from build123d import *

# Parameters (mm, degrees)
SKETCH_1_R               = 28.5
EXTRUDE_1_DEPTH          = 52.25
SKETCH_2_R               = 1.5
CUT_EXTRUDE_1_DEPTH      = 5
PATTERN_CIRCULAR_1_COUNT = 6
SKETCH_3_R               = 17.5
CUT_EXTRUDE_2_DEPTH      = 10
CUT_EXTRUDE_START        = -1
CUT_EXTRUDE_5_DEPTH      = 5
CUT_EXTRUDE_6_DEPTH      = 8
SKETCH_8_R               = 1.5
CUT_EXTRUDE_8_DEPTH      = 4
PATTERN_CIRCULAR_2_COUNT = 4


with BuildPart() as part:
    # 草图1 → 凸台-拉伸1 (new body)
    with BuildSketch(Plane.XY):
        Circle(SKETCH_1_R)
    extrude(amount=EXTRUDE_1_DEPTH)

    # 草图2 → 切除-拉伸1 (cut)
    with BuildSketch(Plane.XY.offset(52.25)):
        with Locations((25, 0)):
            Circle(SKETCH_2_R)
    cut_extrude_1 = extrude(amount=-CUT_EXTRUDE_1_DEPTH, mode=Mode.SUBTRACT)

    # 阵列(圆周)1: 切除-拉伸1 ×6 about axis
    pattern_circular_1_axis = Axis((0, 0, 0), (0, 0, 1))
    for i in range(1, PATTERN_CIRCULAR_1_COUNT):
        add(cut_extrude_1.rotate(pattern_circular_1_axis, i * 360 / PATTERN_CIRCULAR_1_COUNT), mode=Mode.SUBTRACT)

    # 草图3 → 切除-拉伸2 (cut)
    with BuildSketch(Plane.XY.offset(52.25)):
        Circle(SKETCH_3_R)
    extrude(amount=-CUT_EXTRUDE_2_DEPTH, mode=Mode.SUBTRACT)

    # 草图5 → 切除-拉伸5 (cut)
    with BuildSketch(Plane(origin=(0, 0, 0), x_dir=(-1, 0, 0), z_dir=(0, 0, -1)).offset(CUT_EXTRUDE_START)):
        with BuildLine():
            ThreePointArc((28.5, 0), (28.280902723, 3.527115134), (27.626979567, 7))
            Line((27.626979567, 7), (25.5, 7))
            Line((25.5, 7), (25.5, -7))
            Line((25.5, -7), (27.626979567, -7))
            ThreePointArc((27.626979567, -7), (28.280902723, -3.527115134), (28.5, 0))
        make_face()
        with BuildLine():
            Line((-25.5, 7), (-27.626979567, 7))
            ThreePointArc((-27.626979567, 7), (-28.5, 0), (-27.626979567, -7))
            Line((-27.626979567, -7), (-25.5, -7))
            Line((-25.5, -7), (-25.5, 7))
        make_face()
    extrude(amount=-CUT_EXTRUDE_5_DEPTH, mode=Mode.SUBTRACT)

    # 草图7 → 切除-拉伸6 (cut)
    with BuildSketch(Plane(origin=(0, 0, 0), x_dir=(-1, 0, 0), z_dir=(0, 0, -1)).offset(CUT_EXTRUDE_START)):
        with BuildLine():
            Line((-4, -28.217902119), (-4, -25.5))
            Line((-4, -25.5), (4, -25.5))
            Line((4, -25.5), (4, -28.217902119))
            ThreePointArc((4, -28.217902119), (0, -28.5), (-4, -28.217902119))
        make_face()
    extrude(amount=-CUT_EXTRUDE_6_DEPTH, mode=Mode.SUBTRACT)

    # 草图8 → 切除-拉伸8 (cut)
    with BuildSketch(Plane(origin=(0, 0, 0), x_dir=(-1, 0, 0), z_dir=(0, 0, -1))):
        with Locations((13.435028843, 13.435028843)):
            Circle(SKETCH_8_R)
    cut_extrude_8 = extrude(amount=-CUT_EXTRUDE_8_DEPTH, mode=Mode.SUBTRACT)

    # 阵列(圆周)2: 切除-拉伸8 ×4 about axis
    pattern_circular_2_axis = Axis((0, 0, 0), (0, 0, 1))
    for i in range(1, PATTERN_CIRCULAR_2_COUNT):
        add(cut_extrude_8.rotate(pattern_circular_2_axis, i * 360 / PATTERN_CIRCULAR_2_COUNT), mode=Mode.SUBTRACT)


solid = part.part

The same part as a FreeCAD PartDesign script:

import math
import FreeCAD as App
import Part
import Sketcher
from FreeCAD import Vector
Q = App.Units.Quantity

doc = App.newDocument("Part")
body = doc.addObject("PartDesign::Body", "Body")

sketch1 = body.newObject("Sketcher::SketchObject", "Sketch")
sketch1.AttachmentSupport = (doc.getObject("XY_Plane"), [""])
sketch1.MapMode = "FlatFace"
sketch1.addGeometry(Part.Circle(Vector(0, 0, 0), Vector(0, 0, 1), 28), False)
sketch1.addConstraint([
    Sketcher.Constraint("Coincident", 0, 3, -1, 1),
    Sketcher.Constraint("Diameter", 0, Q("57 mm")),
])
pad1 = body.newObject("PartDesign::Pad", "Pad")
pad1.Profile = sketch1
pad1.Length = 52.25

sketch2 = body.newObject("Sketcher::SketchObject", "Sketch001")
sketch2.AttachmentSupport = (doc.getObject("XY_Plane"), [""])
sketch2.MapMode = "FlatFace"
sketch2.AttachmentOffset = App.Placement(Vector(0, 0, 52.25), App.Rotation())
sketch2.addGeometry(Part.Circle(Vector(25, 0, 0), Vector(0, 0, 1), 1.5), False)
sketch2.addConstraint([
    Sketcher.Constraint("PointOnObject", 0, 3, -1),
    Sketcher.Constraint("Diameter", 0, Q("3 mm")),
    Sketcher.Constraint("DistanceX", -1, 1, 0, 3, Q("25 mm")),
])
pocket1 = body.newObject("PartDesign::Pocket", "Pocket")
pocket1.Profile = sketch2
pocket1.Length = 5
doc.recompute()

polarpattern = body.newObject("PartDesign::PolarPattern", "PolarPattern")
polarpattern.Originals = [pocket1]
polarpattern.Axis = (doc.getObject("Z_Axis"), [""])
polarpattern.Angle = 360
polarpattern.Occurrences = 6
body.Tip = polarpattern

sketch3 = body.newObject("Sketcher::SketchObject", "Sketch002")
sketch3.AttachmentSupport = (doc.getObject("XY_Plane"), [""])
sketch3.MapMode = "FlatFace"
sketch3.AttachmentOffset = App.Placement(Vector(0, 0, 52.25), App.Rotation())
sketch3.addGeometry(Part.Circle(Vector(0, 0, 0), Vector(0, 0, 1), 18), False)
sketch3.addConstraint([
    Sketcher.Constraint("Coincident", 0, 3, -1, 1),
    Sketcher.Constraint("Diameter", 0, Q("35 mm")),
])
pocket2 = body.newObject("PartDesign::Pocket", "Pocket001")
pocket2.Profile = sketch3
pocket2.Length = 10

sketch4 = body.newObject("Sketcher::SketchObject", "Sketch003")
sketch4.AttachmentSupport = (doc.getObject("XY_Plane"), [""])
sketch4.MapMode = "FlatFace"
sketch4.AttachmentOffset = App.Placement(Vector(0, 0, 1), App.Rotation())
sketch4.addGeometry([
    Part.ArcOfCircle(Part.Circle(Vector(0, 0, 0), Vector(0, 0, 1), 28.5), math.radians(165.78), math.radians(180)),
    Part.LineSegment(Vector(-27.6, 7, 0), Vector(-25.5, 7, 0)),
    Part.LineSegment(Vector(-25.5, 7, 0), Vector(-25.5, -7, 0)),
    Part.LineSegment(Vector(-25.5, -7, 0), Vector(-27.6, -7, 0)),
    Part.ArcOfCircle(Part.Circle(Vector(0, 0, 0), Vector(0, 0, 1), 28.5), math.radians(-180), math.radians(-165.78)),
    Part.LineSegment(Vector(25.5, 7, 0), Vector(27.6, 7, 0)),
    Part.ArcOfCircle(Part.Circle(Vector(0, 0, 0), Vector(0, 0, 1), 28.5), math.radians(-14), math.radians(14)),
    Part.LineSegment(Vector(27.6, -7, 0), Vector(25.5, -7, 0)),
    Part.LineSegment(Vector(25.5, -7, 0), Vector(25.5, 7, 0)),
], False)
sketch4.addConstraint([
    Sketcher.Constraint("Coincident", 0, 1, 1, 1),
    Sketcher.Constraint("Coincident", 1, 2, 2, 1),
    Sketcher.Constraint("Coincident", 2, 2, 3, 1),
    Sketcher.Constraint("Coincident", 3, 2, 4, 2),
    Sketcher.Constraint("Tangent", 4, 1, 0, 2),
    Sketcher.Constraint("Coincident", 5, 2, 6, 2),
    Sketcher.Constraint("Coincident", 6, 1, 7, 1),
    Sketcher.Constraint("Coincident", 7, 2, 8, 1),
    Sketcher.Constraint("Coincident", 8, 2, 5, 1),
    Sketcher.Constraint("Horizontal", 1),
    Sketcher.Constraint("Vertical", 2),
    Sketcher.Constraint("Horizontal", 3),
    Sketcher.Constraint("Horizontal", 5),
    Sketcher.Constraint("Horizontal", 7),
    Sketcher.Constraint("Vertical", 8),
    Sketcher.Constraint("Coincident", 0, 3, -1, 1),
    Sketcher.Constraint("Coincident", 6, 3, -1, 1),
    Sketcher.Constraint("Equal", 0, 4),
    Sketcher.Constraint("Equal", 4, 6),
    Sketcher.Constraint("Symmetric", 1, 2, 7, 2, -1, 1),
    Sketcher.Constraint("PointOnObject", 4, 1, -1),
    Sketcher.Constraint("Horizontal", 1, 2, 5, 2),
    Sketcher.Constraint("Horizontal", 3, 2, 6, 1),
    Sketcher.Constraint("Radius", 0, Q("28.5 mm")),
    Sketcher.Constraint("DistanceY", 2, 2, 2, 1, Q("14 mm")),
    Sketcher.Constraint("DistanceX", 4, 1, 1, 2, Q("3 mm")),
])
pocket3 = body.newObject("PartDesign::Pocket", "Pocket002")
pocket3.Profile = sketch4
pocket3.Length = 5
pocket3.Reversed = True

sketch5 = body.newObject("Sketcher::SketchObject", "Sketch004")
sketch5.AttachmentSupport = (doc.getObject("XY_Plane"), [""])
sketch5.MapMode = "FlatFace"
sketch5.AttachmentOffset = App.Placement(Vector(0, 0, 1), App.Rotation())
sketch5.addGeometry([
    Part.LineSegment(Vector(4, -25.5, 0), Vector(4, -28.2, 0)),
    Part.ArcOfCircle(Part.Circle(Vector(0, 0, 0), Vector(0, 0, 1), 28.5), math.radians(-98.07), math.radians(-81.93)),
    Part.LineSegment(Vector(-4, -28.2, 0), Vector(-4, -25.5, 0)),
    Part.LineSegment(Vector(-4, -25.5, 0), Vector(4, -25.5, 0)),
], False)
sketch5.addConstraint([
    Sketcher.Constraint("Coincident", 0, 2, 1, 2),
    Sketcher.Constraint("Coincident", 1, 1, 2, 1),
    Sketcher.Constraint("Coincident", 2, 2, 3, 1),
    Sketcher.Constraint("Coincident", 3, 2, 0, 1),
    Sketcher.Constraint("Vertical", 0),
    Sketcher.Constraint("Vertical", 2),
    Sketcher.Constraint("Horizontal", 3),
    Sketcher.Constraint("Coincident", 1, 3, -1, 1),
    Sketcher.Constraint("Horizontal", 0, 2, 1, 1),
    Sketcher.Constraint("Radius", 1, Q("28.5 mm")),
    Sketcher.Constraint("DistanceX", 3, 1, 3, 2, Q("8 mm")),
    Sketcher.Constraint("DistanceY", 2, 2, -1, 1, Q("25.5 mm")),
])
pocket4 = body.newObject("PartDesign::Pocket", "Pocket003")
pocket4.Profile = sketch5
pocket4.Length = 8
pocket4.Reversed = True

sketch6 = body.newObject("Sketcher::SketchObject", "Sketch005")
sketch6.AttachmentSupport = (doc.getObject("XY_Plane"), [""])
sketch6.MapMode = "FlatFace"
sketch6.addGeometry(Part.Circle(Vector(-13.4, 13.4, 0), Vector(0, 0, 1), 1.5), False)
sketch6.addConstraint([
    Sketcher.Constraint("Diameter", 0, Q("3 mm")),
    Sketcher.Constraint("DistanceX", 0, 3, -1, 1, Q("13.435029 mm")),
    Sketcher.Constraint("DistanceY", -1, 1, 0, 3, Q("13.435029 mm")),
])
pocket5 = body.newObject("PartDesign::Pocket", "Pocket004")
pocket5.Profile = sketch6
pocket5.Length = 4
pocket5.Reversed = True
doc.recompute()

polarpattern2 = body.newObject("PartDesign::PolarPattern", "PolarPattern001")
polarpattern2.Originals = [pocket5]
polarpattern2.Axis = (doc.getObject("Z_Axis"), [""])
polarpattern2.Angle = 360
polarpattern2.Occurrences = 4
body.Tip = polarpattern2

doc.recompute()
